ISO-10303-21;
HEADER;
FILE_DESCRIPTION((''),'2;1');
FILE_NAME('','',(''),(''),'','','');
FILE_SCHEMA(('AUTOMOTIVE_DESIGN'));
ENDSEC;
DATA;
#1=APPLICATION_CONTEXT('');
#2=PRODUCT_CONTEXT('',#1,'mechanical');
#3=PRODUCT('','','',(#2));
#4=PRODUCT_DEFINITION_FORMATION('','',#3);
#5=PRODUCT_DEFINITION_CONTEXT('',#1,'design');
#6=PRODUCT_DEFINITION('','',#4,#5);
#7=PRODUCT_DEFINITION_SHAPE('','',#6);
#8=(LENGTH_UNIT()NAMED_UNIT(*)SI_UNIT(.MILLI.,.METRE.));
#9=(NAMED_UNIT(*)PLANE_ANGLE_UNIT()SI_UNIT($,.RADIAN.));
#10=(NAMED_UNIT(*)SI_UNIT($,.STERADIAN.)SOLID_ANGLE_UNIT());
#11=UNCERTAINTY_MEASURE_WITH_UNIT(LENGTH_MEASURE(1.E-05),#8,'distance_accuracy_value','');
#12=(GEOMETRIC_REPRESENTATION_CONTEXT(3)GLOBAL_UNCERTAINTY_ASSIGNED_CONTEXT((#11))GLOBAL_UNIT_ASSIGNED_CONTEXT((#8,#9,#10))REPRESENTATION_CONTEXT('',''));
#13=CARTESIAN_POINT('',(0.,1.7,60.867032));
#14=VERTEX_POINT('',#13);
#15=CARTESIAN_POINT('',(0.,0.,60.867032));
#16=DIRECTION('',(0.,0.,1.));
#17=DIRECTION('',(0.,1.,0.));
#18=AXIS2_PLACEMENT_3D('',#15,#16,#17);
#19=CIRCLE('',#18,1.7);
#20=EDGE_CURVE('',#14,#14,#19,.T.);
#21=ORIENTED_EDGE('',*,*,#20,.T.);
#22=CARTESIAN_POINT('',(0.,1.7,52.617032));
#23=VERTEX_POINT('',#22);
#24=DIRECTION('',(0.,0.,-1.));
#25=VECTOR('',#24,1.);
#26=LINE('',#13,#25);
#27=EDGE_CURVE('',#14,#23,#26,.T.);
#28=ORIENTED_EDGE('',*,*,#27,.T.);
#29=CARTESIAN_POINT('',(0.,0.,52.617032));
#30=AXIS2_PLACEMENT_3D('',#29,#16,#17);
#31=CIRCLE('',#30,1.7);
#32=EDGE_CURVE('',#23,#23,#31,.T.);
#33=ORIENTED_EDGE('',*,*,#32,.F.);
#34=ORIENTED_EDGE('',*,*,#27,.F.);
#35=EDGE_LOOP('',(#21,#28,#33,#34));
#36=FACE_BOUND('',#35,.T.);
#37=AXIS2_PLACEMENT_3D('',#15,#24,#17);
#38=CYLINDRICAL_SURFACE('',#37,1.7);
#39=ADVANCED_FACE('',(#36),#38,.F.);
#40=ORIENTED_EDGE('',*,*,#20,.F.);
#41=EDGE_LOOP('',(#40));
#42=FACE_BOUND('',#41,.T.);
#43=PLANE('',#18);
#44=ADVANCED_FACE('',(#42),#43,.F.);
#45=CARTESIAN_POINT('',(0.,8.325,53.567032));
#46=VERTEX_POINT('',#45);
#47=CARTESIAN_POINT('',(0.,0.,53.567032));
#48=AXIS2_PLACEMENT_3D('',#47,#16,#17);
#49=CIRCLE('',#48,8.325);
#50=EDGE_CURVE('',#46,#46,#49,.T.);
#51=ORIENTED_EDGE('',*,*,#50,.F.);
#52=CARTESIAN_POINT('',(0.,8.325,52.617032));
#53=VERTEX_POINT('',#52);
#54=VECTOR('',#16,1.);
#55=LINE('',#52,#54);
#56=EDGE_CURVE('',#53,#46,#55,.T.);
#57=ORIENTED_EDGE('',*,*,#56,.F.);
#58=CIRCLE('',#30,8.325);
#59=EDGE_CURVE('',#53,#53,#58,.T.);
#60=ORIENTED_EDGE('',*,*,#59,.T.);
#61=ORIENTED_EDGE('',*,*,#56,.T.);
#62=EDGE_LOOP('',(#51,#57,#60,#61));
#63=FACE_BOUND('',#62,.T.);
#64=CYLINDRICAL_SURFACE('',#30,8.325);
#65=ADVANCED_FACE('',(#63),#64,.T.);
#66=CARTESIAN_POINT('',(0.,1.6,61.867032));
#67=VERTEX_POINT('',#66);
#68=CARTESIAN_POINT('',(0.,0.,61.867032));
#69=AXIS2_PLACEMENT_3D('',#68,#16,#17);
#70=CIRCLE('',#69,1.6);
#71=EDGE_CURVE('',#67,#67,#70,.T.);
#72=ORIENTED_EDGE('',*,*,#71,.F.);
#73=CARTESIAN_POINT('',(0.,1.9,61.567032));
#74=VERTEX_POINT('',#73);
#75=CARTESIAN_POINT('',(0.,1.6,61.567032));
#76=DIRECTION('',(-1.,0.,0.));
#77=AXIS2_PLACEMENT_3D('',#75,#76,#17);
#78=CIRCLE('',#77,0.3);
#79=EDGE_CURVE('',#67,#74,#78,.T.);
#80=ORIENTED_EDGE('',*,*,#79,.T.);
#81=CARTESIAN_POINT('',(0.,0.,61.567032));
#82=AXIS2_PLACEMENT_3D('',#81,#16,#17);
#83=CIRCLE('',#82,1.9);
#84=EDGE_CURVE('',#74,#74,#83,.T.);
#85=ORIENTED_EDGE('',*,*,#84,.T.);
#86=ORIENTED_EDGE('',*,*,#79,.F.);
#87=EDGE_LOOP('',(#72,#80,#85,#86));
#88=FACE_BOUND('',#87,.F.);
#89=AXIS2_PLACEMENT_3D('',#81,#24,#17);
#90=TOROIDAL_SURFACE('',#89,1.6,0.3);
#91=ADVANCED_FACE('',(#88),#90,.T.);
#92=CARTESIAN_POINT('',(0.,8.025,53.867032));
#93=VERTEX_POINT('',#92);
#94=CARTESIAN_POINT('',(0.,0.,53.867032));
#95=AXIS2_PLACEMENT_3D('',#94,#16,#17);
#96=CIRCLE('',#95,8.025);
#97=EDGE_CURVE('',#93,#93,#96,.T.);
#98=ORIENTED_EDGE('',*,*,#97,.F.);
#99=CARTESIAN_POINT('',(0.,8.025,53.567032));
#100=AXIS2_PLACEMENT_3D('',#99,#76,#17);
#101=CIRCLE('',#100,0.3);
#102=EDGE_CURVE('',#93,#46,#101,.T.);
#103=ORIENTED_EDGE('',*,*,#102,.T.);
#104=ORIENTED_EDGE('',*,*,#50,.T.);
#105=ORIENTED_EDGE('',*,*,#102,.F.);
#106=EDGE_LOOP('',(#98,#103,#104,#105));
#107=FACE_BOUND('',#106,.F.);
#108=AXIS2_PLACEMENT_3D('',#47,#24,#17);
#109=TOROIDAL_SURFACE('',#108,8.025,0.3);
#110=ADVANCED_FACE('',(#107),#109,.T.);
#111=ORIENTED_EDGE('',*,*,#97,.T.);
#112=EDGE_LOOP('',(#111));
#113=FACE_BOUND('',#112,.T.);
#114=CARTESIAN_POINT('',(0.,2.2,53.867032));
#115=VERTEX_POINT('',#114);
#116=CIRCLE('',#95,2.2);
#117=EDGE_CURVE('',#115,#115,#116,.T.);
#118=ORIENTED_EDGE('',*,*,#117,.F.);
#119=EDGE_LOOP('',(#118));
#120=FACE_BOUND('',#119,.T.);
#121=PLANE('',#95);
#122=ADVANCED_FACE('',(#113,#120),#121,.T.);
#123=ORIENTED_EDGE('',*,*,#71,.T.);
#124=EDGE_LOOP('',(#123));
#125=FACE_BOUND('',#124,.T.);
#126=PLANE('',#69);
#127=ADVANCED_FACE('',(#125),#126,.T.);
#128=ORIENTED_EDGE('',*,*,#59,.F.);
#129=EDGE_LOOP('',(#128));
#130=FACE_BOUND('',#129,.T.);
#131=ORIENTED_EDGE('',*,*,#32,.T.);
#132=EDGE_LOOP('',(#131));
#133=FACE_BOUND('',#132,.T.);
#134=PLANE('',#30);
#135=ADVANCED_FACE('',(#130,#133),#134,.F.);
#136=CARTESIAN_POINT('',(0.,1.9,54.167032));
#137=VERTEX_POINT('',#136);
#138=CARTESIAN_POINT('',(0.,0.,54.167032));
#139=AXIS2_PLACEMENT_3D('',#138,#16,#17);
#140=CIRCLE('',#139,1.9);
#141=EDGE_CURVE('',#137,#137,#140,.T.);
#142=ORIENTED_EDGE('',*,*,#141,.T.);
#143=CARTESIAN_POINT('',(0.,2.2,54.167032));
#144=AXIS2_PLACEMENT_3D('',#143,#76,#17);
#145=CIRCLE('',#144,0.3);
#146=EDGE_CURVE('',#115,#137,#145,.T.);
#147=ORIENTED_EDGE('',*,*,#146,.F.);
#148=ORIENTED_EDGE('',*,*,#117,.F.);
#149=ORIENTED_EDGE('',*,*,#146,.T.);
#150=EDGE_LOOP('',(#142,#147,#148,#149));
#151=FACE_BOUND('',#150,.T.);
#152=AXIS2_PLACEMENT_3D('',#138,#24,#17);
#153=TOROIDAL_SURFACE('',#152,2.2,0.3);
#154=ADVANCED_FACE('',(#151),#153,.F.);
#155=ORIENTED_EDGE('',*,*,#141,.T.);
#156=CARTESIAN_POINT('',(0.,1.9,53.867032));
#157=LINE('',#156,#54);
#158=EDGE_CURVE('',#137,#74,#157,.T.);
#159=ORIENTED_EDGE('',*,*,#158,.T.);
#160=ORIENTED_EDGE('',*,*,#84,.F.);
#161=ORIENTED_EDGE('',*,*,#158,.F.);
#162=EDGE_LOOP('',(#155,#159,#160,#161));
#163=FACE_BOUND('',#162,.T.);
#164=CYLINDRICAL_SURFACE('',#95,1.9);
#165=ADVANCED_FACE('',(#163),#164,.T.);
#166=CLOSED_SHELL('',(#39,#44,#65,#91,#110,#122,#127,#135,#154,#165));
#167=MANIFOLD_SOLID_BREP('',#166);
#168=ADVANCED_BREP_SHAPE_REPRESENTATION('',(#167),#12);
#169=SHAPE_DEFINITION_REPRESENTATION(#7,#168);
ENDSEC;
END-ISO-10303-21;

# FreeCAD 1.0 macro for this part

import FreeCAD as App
import Part
import Sketcher
from FreeCAD import Vector
Q = App.Units.Quantity


def edges_at(feature, points):
    """Names of the edges that pass closest to the given points."""
    edges = feature.Shape.Edges
    near = lambda p: min(range(len(edges)), key=lambda i: edges[i].distToShape(Part.Vertex(*p))[0])
    return sorted({f"Edge{near(p) + 1}" for p in points})

doc = App.newDocument("Part")
body = doc.addObject("PartDesign::Body", "Body")

# Sketch on YZ plane
sketch1 = doc.addObject("Sketcher::SketchObject", "Sketch")
body.addObject(sketch1)
sketch1.AttachmentSupport = (doc.YZ_Plane, [""])
sketch1.MapMode = "FlatFace"
sketch1.addGeometry(Part.LineSegment(Vector(1.9, 61.9, 0), Vector(0, 61.9, 0)), False)
sketch1.addGeometry(Part.LineSegment(Vector(0, 61.9, 0), Vector(0, 60.9, 0)), False)
sketch1.addGeometry(Part.LineSegment(Vector(0, 60.9, 0), Vector(1.7, 60.9, 0)), False)
sketch1.addGeometry(Part.LineSegment(Vector(1.7, 60.9, 0), Vector(1.7, 52.6, 0)), False)
sketch1.addGeometry(Part.LineSegment(Vector(1.7, 52.6, 0), Vector(8.3, 52.6, 0)), False)
sketch1.addGeometry(Part.LineSegment(Vector(8.3, 52.6, 0), Vector(8.3, 53.9, 0)), False)
sketch1.addGeometry(Part.LineSegment(Vector(8.3, 53.9, 0), Vector(1.9, 53.9, 0)), False)
sketch1.addGeometry(Part.LineSegment(Vector(1.9, 53.9, 0), Vector(1.9, 61.9, 0)), False)
sketch1.addConstraint(Sketcher.Constraint("Coincident", 0, 2, 1, 1))
sketch1.addConstraint(Sketcher.Constraint("Coincident", 1, 2, 2, 1))
sketch1.addConstraint(Sketcher.Constraint("Coincident", 2, 2, 3, 1))
sketch1.addConstraint(Sketcher.Constraint("Coincident", 3, 2, 4, 1))
sketch1.addConstraint(Sketcher.Constraint("Coincident", 4, 2, 5, 1))
sketch1.addConstraint(Sketcher.Constraint("Coincident", 5, 2, 6, 1))
sketch1.addConstraint(Sketcher.Constraint("Coincident", 6, 2, 7, 1))
sketch1.addConstraint(Sketcher.Constraint("Coincident", 7, 2, 0, 1))
sketch1.addConstraint(Sketcher.Constraint("Horizontal", 0))
sketch1.addConstraint(Sketcher.Constraint("Vertical", 1))
sketch1.addConstraint(Sketcher.Constraint("Horizontal", 2))
sketch1.addConstraint(Sketcher.Constraint("Vertical", 3))
sketch1.addConstraint(Sketcher.Constraint("Horizontal", 4))
sketch1.addConstraint(Sketcher.Constraint("Vertical", 5))
sketch1.addConstraint(Sketcher.Constraint("Horizontal", 6))
sketch1.addConstraint(Sketcher.Constraint("Vertical", 7))
sketch1.addConstraint(Sketcher.Constraint("PointOnObject", 0, 2, -2))
sketch1.addConstraint(Sketcher.Constraint("DistanceY", 1, 2, 1, 1, Q("1 mm")))
sketch1.addConstraint(Sketcher.Constraint("DistanceY", 7, 1, 7, 2, Q("8 mm")))
sketch1.addConstraint(Sketcher.Constraint("DistanceX", 0, 2, 0, 1, Q("1.9 mm")))
sketch1.addConstraint(Sketcher.Constraint("DistanceX", 2, 1, 2, 2, Q("1.7 mm")))
sketch1.addConstraint(Sketcher.Constraint("DistanceY", 3, 2, 3, 1, Q("8.25 mm")))
sketch1.addConstraint(Sketcher.Constraint("DistanceX", 4, 1, 4, 2, Q("6.625 mm")))
sketch1.addConstraint(Sketcher.Constraint("DistanceY", -1, 1, 0, 2, Q("61.867032 mm")))
revolution = doc.addObject("PartDesign::Revolution", "Revolution")
body.addObject(revolution)
revolution.Profile = sketch1
revolution.ReferenceAxis = (sketch1, ["V_Axis"])
revolution.Angle = 360
doc.recompute()

fillet = doc.addObject("PartDesign::Fillet", "Fillet")
body.addObject(fillet)
fillet.Base = (revolution, edges_at(revolution, [(0, -1.9, 61.867)]))
fillet.Radius = 0.3
doc.recompute()

fillet2 = doc.addObject("PartDesign::Fillet", "Fillet001")
body.addObject(fillet2)
fillet2.Base = (fillet, edges_at(fillet, [(0, -8.325, 53.867)]))
fillet2.Radius = 0.3
doc.recompute()

fillet3 = doc.addObject("PartDesign::Fillet", "Fillet002")
body.addObject(fillet3)
fillet3.Base = (fillet2, edges_at(fillet2, [(0, -1.9, 53.867)]))
fillet3.Radius = 0.3

doc.recompute()
